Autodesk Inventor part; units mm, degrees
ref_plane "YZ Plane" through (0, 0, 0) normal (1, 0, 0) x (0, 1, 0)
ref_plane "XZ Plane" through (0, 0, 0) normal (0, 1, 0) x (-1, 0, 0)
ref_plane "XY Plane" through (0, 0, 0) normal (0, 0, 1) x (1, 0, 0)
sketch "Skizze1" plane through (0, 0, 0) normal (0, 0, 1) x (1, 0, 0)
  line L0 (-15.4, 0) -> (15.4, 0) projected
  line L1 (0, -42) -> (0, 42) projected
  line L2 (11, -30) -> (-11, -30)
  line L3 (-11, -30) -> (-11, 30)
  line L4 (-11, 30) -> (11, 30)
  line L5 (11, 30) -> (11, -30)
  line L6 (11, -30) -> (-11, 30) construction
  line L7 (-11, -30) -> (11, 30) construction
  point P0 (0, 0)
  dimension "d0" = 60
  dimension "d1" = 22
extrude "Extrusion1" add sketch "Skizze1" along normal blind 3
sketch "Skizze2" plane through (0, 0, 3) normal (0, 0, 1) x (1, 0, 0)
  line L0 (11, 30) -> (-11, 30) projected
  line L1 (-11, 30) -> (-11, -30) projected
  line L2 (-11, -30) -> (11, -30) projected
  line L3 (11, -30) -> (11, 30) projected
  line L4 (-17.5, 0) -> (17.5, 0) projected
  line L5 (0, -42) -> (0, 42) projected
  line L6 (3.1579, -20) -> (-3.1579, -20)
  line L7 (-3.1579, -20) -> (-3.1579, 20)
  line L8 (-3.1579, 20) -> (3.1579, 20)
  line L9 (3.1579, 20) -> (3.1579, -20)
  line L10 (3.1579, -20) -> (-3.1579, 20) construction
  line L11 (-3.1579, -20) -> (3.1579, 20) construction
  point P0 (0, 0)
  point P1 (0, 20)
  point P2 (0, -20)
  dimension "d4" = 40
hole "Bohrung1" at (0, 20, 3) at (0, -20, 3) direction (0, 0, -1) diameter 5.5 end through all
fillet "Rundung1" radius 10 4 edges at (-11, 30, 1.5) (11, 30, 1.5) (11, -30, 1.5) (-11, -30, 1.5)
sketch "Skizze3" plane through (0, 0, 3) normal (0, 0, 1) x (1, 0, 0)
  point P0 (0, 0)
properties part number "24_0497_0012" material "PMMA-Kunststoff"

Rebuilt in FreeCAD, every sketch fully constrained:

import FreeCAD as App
import Part
import Sketcher
Q = App.Units.Quantity


def edges_at(feature, points):
    """Names of the edges that pass closest to the given points."""
    edges = feature.Shape.Edges
    near = lambda p: min(range(len(edges)), key=lambda i: edges[i].distToShape(Part.Vertex(*p))[0])
    return sorted({f"Edge{near(p) + 1}" for p in points})


def add_polygon(sketch, points):
    """Adds a closed chain of lines whose ends are joined by coincident constraints."""
    first, n = sketch.GeometryCount, len(points)
    for a, b in zip(points, points[1:] + points[:1]):
        sketch.addGeometry(Part.LineSegment(App.Vector(*a, 0), App.Vector(*b, 0)), False)
    for i in range(n):
        sketch.addConstraint(Sketcher.Constraint("Coincident", first + i, 2, first + (i + 1) % n, 1))

doc = App.newDocument("Part")
params = doc.addObject("Spreadsheet::Sheet", "Params")
for row, (alias, value) in enumerate([
    ("sketch1_width", "22 mm"),
    ("sketch1_height", "60 mm"),
    ("pad1_length", "3 mm"),
    ("sketch2_diameter", "5.5 mm"),
    ("hole_diameter", "5.5 mm"),
    ("fillet_radius", "10 mm"),
], start=1):
    params.set(f"A{row}", alias)
    params.set(f"B{row}", "=" + value)
    params.setAlias(f"B{row}", alias)

body = doc.addObject("PartDesign::Body", "Body")

# Sketch on XY plane
sketch1 = body.newObject("Sketcher::SketchObject", "Sketch")
sketch1.AttachmentSupport = (doc.getObject("XY_Plane"), [""])
sketch1.MapMode = "FlatFace"
add_polygon(sketch1, [(-11, 30), (-11, -30), (11, -30), (11, 30)])  # lines 0-3
sketch1.addConstraint(Sketcher.Constraint("Vertical", 0))
sketch1.addConstraint(Sketcher.Constraint("Horizontal", 1))
sketch1.addConstraint(Sketcher.Constraint("Vertical", 2))
sketch1.addConstraint(Sketcher.Constraint("Horizontal", 3))
sketch1.addConstraint(Sketcher.Constraint("Symmetric", 0, 2, 2, 2, -1, 1))
sketch1.addConstraint(Sketcher.Constraint("DistanceX", 1, 1, 1, 2, Q("22 mm")))
sketch1.addConstraint(Sketcher.Constraint("DistanceY", 0, 2, 0, 1, Q("60 mm")))
sketch1.setExpression("Constraints[9]", "Params.sketch1_width")
sketch1.setExpression("Constraints[10]", "Params.sketch1_height")
pad1 = body.newObject("PartDesign::Pad", "Pad")
pad1.Profile = sketch1
pad1.setExpression("Length", "Params.pad1_length")

# Sketch on XY plane
sketch2 = body.newObject("Sketcher::SketchObject", "Sketch001")
sketch2.AttachmentSupport = (doc.getObject("XY_Plane"), [""])
sketch2.MapMode = "FlatFace"
sketch2.AttachmentOffset = App.Placement(App.Vector(0, 0, 3), App.Rotation())
sketch2.addGeometry(Part.Circle(App.Vector(0, 20, 0), App.Vector(0, 0, 1), 2.8), False)
sketch2.addGeometry(Part.Circle(App.Vector(0, -20, 0), App.Vector(0, 0, 1), 2.8), False)
sketch2.addConstraint(Sketcher.Constraint("Equal", 0, 1))
sketch2.addConstraint(Sketcher.Constraint("Symmetric", 0, 3, 1, 3, -1, 1))
sketch2.addConstraint(Sketcher.Constraint("PointOnObject", 0, 3, -2))
sketch2.addConstraint(Sketcher.Constraint("Diameter", 0, Q("5.5 mm")))
sketch2.addConstraint(Sketcher.Constraint("DistanceY", -1, 1, 0, 3, Q("20 mm")))
sketch2.setExpression("Constraints[3]", "Params.sketch2_diameter")
doc.recompute()
hole = body.newObject("PartDesign::Hole", "Hole")
hole.Profile = sketch2
hole.ThreadType = "None"
hole.setExpression("Diameter", "Params.hole_diameter")
hole.DepthType = "ThroughAll"
doc.recompute()

fillet = body.newObject("PartDesign::Fillet", "Fillet")
fillet.Base = (hole, edges_at(hole, [
    (-11, 30, 1.5),
    (11, 30, 1.5),
    (11, -30, 1.5),
    (-11, -30, 1.5),
]))
fillet.setExpression("Radius", "Params.fillet_radius")

doc.recompute()
